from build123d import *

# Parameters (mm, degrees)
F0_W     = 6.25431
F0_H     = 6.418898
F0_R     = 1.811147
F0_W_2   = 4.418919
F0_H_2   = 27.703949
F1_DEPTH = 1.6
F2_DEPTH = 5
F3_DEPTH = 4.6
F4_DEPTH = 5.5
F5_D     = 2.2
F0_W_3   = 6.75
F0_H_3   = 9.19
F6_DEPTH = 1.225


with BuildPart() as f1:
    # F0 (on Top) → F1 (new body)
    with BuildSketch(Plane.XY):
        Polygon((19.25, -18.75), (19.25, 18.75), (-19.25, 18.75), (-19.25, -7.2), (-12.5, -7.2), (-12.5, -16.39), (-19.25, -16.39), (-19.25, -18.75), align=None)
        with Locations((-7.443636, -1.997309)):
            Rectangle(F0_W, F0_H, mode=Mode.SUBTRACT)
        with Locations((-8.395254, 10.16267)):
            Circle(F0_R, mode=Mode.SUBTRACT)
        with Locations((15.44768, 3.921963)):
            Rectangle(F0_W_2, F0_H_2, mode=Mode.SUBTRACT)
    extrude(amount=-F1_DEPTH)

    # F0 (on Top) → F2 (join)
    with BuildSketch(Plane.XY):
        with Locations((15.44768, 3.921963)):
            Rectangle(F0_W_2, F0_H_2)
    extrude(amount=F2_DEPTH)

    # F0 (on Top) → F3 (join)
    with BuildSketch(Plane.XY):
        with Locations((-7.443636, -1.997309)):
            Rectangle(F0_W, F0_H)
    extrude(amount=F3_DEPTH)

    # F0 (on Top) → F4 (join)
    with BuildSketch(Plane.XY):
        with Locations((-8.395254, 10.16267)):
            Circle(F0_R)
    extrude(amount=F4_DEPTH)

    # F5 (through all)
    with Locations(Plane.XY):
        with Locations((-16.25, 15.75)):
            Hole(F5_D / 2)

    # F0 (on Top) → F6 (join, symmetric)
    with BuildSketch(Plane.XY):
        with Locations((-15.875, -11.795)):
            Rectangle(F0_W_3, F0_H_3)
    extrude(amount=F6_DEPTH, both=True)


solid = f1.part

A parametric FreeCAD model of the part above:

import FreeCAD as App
import Part
import Sketcher

doc = App.newDocument("Part")
body = doc.addObject("PartDesign::Body", "Body")
body.AllowCompound = True

sketch1 = doc.addObject("Sketcher::SketchObject", "Sketch")
body.addObject(sketch1)
sketch1.AttachmentSupport = (doc.XY_Plane, [""])
sketch1.MapMode = "FlatFace"
sketch1.addGeometry(Part.LineSegment(App.Vector(19.2, -18.8, 0), App.Vector(19.2, 18.8, 0)), False)
sketch1.addGeometry(Part.LineSegment(App.Vector(19.2, 18.8, 0), App.Vector(-19.2, 18.8, 0)), False)
sketch1.addGeometry(Part.LineSegment(App.Vector(-19.2, 18.8, 0), App.Vector(-19.2, -7.2, 0)), False)
sketch1.addGeometry(Part.LineSegment(App.Vector(-19.2, -7.2, 0), App.Vector(-12.5, -7.2, 0)), False)
sketch1.addGeometry(Part.LineSegment(App.Vector(-12.5, -7.2, 0), App.Vector(-12.5, -16.4, 0)), False)
sketch1.addGeometry(Part.LineSegment(App.Vector(-12.5, -16.4, 0), App.Vector(-19.2, -16.4, 0)), False)
sketch1.addGeometry(Part.LineSegment(App.Vector(-19.2, -16.4, 0), App.Vector(-19.2, -18.8, 0)), False)
sketch1.addGeometry(Part.LineSegment(App.Vector(-19.2, -18.8, 0), App.Vector(19.2, -18.8, 0)), False)
sketch1.addGeometry(Part.LineSegment(App.Vector(-4.3, -5.2, 0), App.Vector(-10.6, -5.2, 0)), False)
sketch1.addGeometry(Part.LineSegment(App.Vector(-10.6, -5.2, 0), App.Vector(-10.6, 1.2, 0)), False)
sketch1.addGeometry(Part.LineSegment(App.Vector(-10.6, 1.2, 0), App.Vector(-4.3, 1.2, 0)), False)
sketch1.addGeometry(Part.LineSegment(App.Vector(-4.3, 1.2, 0), App.Vector(-4.3, -5.2, 0)), False)
sketch1.addGeometry(Part.Circle(App.Vector(-8.4, 10.2, 0), App.Vector(0, 0, 1), 1.8), False)
sketch1.addGeometry(Part.LineSegment(App.Vector(17.7, -9.9, 0), App.Vector(13.2, -9.9, 0)), False)
sketch1.addGeometry(Part.LineSegment(App.Vector(13.2, -9.9, 0), App.Vector(13.2, 17.8, 0)), False)
sketch1.addGeometry(Part.LineSegment(App.Vector(13.2, 17.8, 0), App.Vector(17.7, 17.8, 0)), False)
sketch1.addGeometry(Part.LineSegment(App.Vector(17.7, 17.8, 0), App.Vector(17.7, -9.9, 0)), False)
sketch1.addConstraint(Sketcher.Constraint("Coincident", 0, 2, 1, 1))
sketch1.addConstraint(Sketcher.Constraint("Coincident", 1, 2, 2, 1))
sketch1.addConstraint(Sketcher.Constraint("Coincident", 2, 2, 3, 1))
sketch1.addConstraint(Sketcher.Constraint("Coincident", 3, 2, 4, 1))
sketch1.addConstraint(Sketcher.Constraint("Coincident", 4, 2, 5, 1))
sketch1.addConstraint(Sketcher.Constraint("Coincident", 5, 2, 6, 1))
sketch1.addConstraint(Sketcher.Constraint("Coincident", 6, 2, 7, 1))
sketch1.addConstraint(Sketcher.Constraint("Coincident", 7, 2, 0, 1))
sketch1.addConstraint(Sketcher.Constraint("Coincident", 8, 2, 9, 1))
sketch1.addConstraint(Sketcher.Constraint("Coincident", 9, 2, 10, 1))
sketch1.addConstraint(Sketcher.Constraint("Coincident", 10, 2, 11, 1))
sketch1.addConstraint(Sketcher.Constraint("Coincident", 11, 2, 8, 1))
sketch1.addConstraint(Sketcher.Constraint("Coincident", 13, 2, 14, 1))
sketch1.addConstraint(Sketcher.Constraint("Coincident", 14, 2, 15, 1))
sketch1.addConstraint(Sketcher.Constraint("Coincident", 15, 2, 16, 1))
sketch1.addConstraint(Sketcher.Constraint("Coincident", 16, 2, 13, 1))
sketch1.addConstraint(Sketcher.Constraint("Vertical", 0))
sketch1.addConstraint(Sketcher.Constraint("Horizontal", 1))
sketch1.addConstraint(Sketcher.Constraint("Vertical", 2))
sketch1.addConstraint(Sketcher.Constraint("Horizontal", 3))
sketch1.addConstraint(Sketcher.Constraint("Vertical", 4))
sketch1.addConstraint(Sketcher.Constraint("Horizontal", 5))
sketch1.addConstraint(Sketcher.Constraint("Vertical", 6))
sketch1.addConstraint(Sketcher.Constraint("Horizontal", 7))
sketch1.addConstraint(Sketcher.Constraint("Horizontal", 8))
sketch1.addConstraint(Sketcher.Constraint("Vertical", 9))
sketch1.addConstraint(Sketcher.Constraint("Horizontal", 10))
sketch1.addConstraint(Sketcher.Constraint("Vertical", 11))
sketch1.addConstraint(Sketcher.Constraint("Horizontal", 13))
sketch1.addConstraint(Sketcher.Constraint("Vertical", 14))
sketch1.addConstraint(Sketcher.Constraint("Horizontal", 15))
sketch1.addConstraint(Sketcher.Constraint("Vertical", 16))
sketch1.addConstraint(Sketcher.Constraint("Symmetric", 0, 2, 6, 2, -1, 1))
sketch1.addConstraint(Sketcher.Constraint("Vertical", 2, 2, 5, 2))
sketch1.addConstraint(Sketcher.Constraint("DistanceX", 1, 2, 1, 1, 38.5))
sketch1.addConstraint(Sketcher.Constraint("DistanceY", 0, 1, 0, 2, 37.5))
sketch1.addConstraint(Sketcher.Constraint("DistanceX", 3, 1, 3, 2, 6.75))
sketch1.addConstraint(Sketcher.Constraint("DistanceY", 2, 2, 2, 1, 25.95))
sketch1.addConstraint(Sketcher.Constraint("DistanceY", 4, 2, 4, 1, 9.19))
sketch1.addConstraint(Sketcher.Constraint("Diameter", 12, 3.622294))
sketch1.addConstraint(Sketcher.Constraint("DistanceX", 8, 2, 8, 1, 6.25431))
sketch1.addConstraint(Sketcher.Constraint("DistanceX", 13, 2, 13, 1, 4.418919))
sketch1.addConstraint(Sketcher.Constraint("DistanceY", 14, 1, 14, 2, 27.703949))
sketch1.addConstraint(Sketcher.Constraint("DistanceX", 11, 2, 13, 2, 17.554702))
sketch1.addConstraint(Sketcher.Constraint("DistanceY", 9, 1, 9, 2, 6.418898))
sketch1.addConstraint(Sketcher.Constraint("DistanceY", -1, 1, 12, 3, 10.16267))
sketch1.addConstraint(Sketcher.Constraint("DistanceX", 8, 2, -1, 1, 10.570791))
sketch1.addConstraint(Sketcher.Constraint("DistanceY", -1, 1, 9, 2, 1.21214))
sketch1.addConstraint(Sketcher.Constraint("DistanceY", 13, 2, -1, 1, 9.930012))
sketch1.addConstraint(Sketcher.Constraint("DistanceX", 12, 3, -1, 1, 8.395254))
pad1 = doc.addObject("PartDesign::Pad", "Pad")
body.addObject(pad1)
pad1.Profile = sketch1
pad1.Length = 1.6
pad1.Reversed = True

sketch2 = doc.addObject("Sketcher::SketchObject", "Sketch001")
body.addObject(sketch2)
sketch2.AttachmentSupport = (doc.XY_Plane, [""])
sketch2.MapMode = "FlatFace"
sketch2.addGeometry(Part.LineSegment(App.Vector(13.2, 17.8, 0), App.Vector(13.2, -9.9, 0)), False)
sketch2.addGeometry(Part.LineSegment(App.Vector(13.2, -9.9, 0), App.Vector(17.7, -9.9, 0)), False)
sketch2.addGeometry(Part.LineSegment(App.Vector(17.7, -9.9, 0), App.Vector(17.7, 17.8, 0)), False)
sketch2.addGeometry(Part.LineSegment(App.Vector(17.7, 17.8, 0), App.Vector(13.2, 17.8, 0)), False)
sketch2.addConstraint(Sketcher.Constraint("Coincident", 0, 2, 1, 1))
sketch2.addConstraint(Sketcher.Constraint("Coincident", 1, 2, 2, 1))
sketch2.addConstraint(Sketcher.Constraint("Coincident", 2, 2, 3, 1))
sketch2.addConstraint(Sketcher.Constraint("Coincident", 3, 2, 0, 1))
sketch2.addConstraint(Sketcher.Constraint("Vertical", 0))
sketch2.addConstraint(Sketcher.Constraint("Horizontal", 1))
sketch2.addConstraint(Sketcher.Constraint("Vertical", 2))
sketch2.addConstraint(Sketcher.Constraint("Horizontal", 3))
sketch2.addConstraint(Sketcher.Constraint("DistanceX", 1, 1, 1, 2, 4.418919))
sketch2.addConstraint(Sketcher.Constraint("DistanceY", 0, 2, 0, 1, 27.703949))
sketch2.addConstraint(Sketcher.Constraint("DistanceX", -1, 1, 0, 2, 13.238221))
sketch2.addConstraint(Sketcher.Constraint("DistanceY", 0, 2, -1, 1, 9.930012))
pad2 = doc.addObject("PartDesign::Pad", "Pad001")
body.addObject(pad2)
pad2.Profile = sketch2
pad2.Length = 5

sketch3 = doc.addObject("Sketcher::SketchObject", "Sketch002")
body.addObject(sketch3)
sketch3.AttachmentSupport = (doc.XY_Plane, [""])
sketch3.MapMode = "FlatFace"
sketch3.addGeometry(Part.LineSegment(App.Vector(-11, 1, 0), App.Vector(-11, -5, 0)), False)
sketch3.addGeometry(Part.LineSegment(App.Vector(-11, -5, 0), App.Vector(-4, -5, 0)), False)
sketch3.addGeometry(Part.LineSegment(App.Vector(-4, -5, 0), App.Vector(-4, 1, 0)), False)
sketch3.addGeometry(Part.LineSegment(App.Vector(-4, 1, 0), App.Vector(-11, 1, 0)), False)
sketch3.addConstraint(Sketcher.Constraint("Coincident", 0, 2, 1, 1))
sketch3.addConstraint(Sketcher.Constraint("Coincident", 1, 2, 2, 1))
sketch3.addConstraint(Sketcher.Constraint("Coincident", 2, 2, 3, 1))
sketch3.addConstraint(Sketcher.Constraint("Coincident", 3, 2, 0, 1))
sketch3.addConstraint(Sketcher.Constraint("Vertical", 0))
sketch3.addConstraint(Sketcher.Constraint("Horizontal", 1))
sketch3.addConstraint(Sketcher.Constraint("Vertical", 2))
sketch3.addConstraint(Sketcher.Constraint("Horizontal", 3))
sketch3.addConstraint(Sketcher.Constraint("DistanceX", 1, 1, 1, 2, 6.25431))
sketch3.addConstraint(Sketcher.Constraint("DistanceY", 0, 2, 0, 1, 6.418898))
sketch3.addConstraint(Sketcher.Constraint("DistanceX", 0, 2, -1, 1, 10.570791))
sketch3.addConstraint(Sketcher.Constraint("DistanceY", -1, 1, 2, 2, 1.21214))
pad3 = doc.addObject("PartDesign::Pad", "Pad002")
body.addObject(pad3)
pad3.Profile = sketch3
pad3.Length = 4.6

sketch4 = doc.addObject("Sketcher::SketchObject", "Sketch003")
body.addObject(sketch4)
sketch4.AttachmentSupport = (doc.XY_Plane, [""])
sketch4.MapMode = "FlatFace"
sketch4.addGeometry(Part.Circle(App.Vector(-8.4, 10.2, 0), App.Vector(0, 0, 1), 1.8), False)
sketch4.addConstraint(Sketcher.Constraint("Diameter", 0, 3.622294))
sketch4.addConstraint(Sketcher.Constraint("DistanceY", -1, 1, 0, 3, 10.16267))
sketch4.addConstraint(Sketcher.Constraint("DistanceX", 0, 3, -1, 1, 8.395254))
pad4 = doc.addObject("PartDesign::Pad", "Pad003")
body.addObject(pad4)
pad4.Profile = sketch4
pad4.Length = 5.5

sketch5 = doc.addObject("Sketcher::SketchObject", "Sketch004")
body.addObject(sketch5)
sketch5.AttachmentSupport = (doc.XY_Plane, [""])
sketch5.MapMode = "FlatFace"
sketch5.addGeometry(Part.Circle(App.Vector(-16.2, 15.8, 0), App.Vector(0, 0, 1), 1.1), False)
sketch5.addConstraint(Sketcher.Constraint("Diameter", 0, 2.2))
sketch5.addConstraint(Sketcher.Constraint("DistanceX", 0, 3, -1, 1, 16.25))
sketch5.addConstraint(Sketcher.Constraint("DistanceY", -1, 1, 0, 3, 15.75))
doc.recompute()
hole = doc.addObject("PartDesign::Hole", "Hole")
body.addObject(hole)
hole.Profile = sketch5
hole.ThreadType = "None"
hole.Diameter = 2.2
hole.DepthType = "ThroughAll"

sketch6 = doc.addObject("Sketcher::SketchObject", "Sketch005")
body.addObject(sketch6)
sketch6.AttachmentSupport = (doc.XY_Plane, [""])
sketch6.MapMode = "FlatFace"
sketch6.addGeometry(Part.LineSegment(App.Vector(-19, -7, 0), App.Vector(-19, -16, 0)), False)
sketch6.addGeometry(Part.LineSegment(App.Vector(-19, -16, 0), App.Vector(-12, -16, 0)), False)
sketch6.addGeometry(Part.LineSegment(App.Vector(-12, -16, 0), App.Vector(-12, -7, 0)), False)
sketch6.addGeometry(Part.LineSegment(App.Vector(-12, -7, 0), App.Vector(-19, -7, 0)), False)
sketch6.addConstraint(Sketcher.Constraint("Coincident", 0, 2, 1, 1))
sketch6.addConstraint(Sketcher.Constraint("Coincident", 1, 2, 2, 1))
sketch6.addConstraint(Sketcher.Constraint("Coincident", 2, 2, 3, 1))
sketch6.addConstraint(Sketcher.Constraint("Coincident", 3, 2, 0, 1))
sketch6.addConstraint(Sketcher.Constraint("Vertical", 0))
sketch6.addConstraint(Sketcher.Constraint("Horizontal", 1))
sketch6.addConstraint(Sketcher.Constraint("Vertical", 2))
sketch6.addConstraint(Sketcher.Constraint("Horizontal", 3))
sketch6.addConstraint(Sketcher.Constraint("DistanceX", 1, 1, 1, 2, 6.75))
sketch6.addConstraint(Sketcher.Constraint("DistanceY", 0, 2, 0, 1, 9.19))
sketch6.addConstraint(Sketcher.Constraint("DistanceX", 1, 2, -1, 1, 12.5))
sketch6.addConstraint(Sketcher.Constraint("DistanceY", 2, 2, -1, 1, 7.2))
pad5 = doc.addObject("PartDesign::Pad", "Pad004")
body.addObject(pad5)
pad5.Profile = sketch6
pad5.Length = 2.45
pad5.Midplane = True

doc.recompute()
